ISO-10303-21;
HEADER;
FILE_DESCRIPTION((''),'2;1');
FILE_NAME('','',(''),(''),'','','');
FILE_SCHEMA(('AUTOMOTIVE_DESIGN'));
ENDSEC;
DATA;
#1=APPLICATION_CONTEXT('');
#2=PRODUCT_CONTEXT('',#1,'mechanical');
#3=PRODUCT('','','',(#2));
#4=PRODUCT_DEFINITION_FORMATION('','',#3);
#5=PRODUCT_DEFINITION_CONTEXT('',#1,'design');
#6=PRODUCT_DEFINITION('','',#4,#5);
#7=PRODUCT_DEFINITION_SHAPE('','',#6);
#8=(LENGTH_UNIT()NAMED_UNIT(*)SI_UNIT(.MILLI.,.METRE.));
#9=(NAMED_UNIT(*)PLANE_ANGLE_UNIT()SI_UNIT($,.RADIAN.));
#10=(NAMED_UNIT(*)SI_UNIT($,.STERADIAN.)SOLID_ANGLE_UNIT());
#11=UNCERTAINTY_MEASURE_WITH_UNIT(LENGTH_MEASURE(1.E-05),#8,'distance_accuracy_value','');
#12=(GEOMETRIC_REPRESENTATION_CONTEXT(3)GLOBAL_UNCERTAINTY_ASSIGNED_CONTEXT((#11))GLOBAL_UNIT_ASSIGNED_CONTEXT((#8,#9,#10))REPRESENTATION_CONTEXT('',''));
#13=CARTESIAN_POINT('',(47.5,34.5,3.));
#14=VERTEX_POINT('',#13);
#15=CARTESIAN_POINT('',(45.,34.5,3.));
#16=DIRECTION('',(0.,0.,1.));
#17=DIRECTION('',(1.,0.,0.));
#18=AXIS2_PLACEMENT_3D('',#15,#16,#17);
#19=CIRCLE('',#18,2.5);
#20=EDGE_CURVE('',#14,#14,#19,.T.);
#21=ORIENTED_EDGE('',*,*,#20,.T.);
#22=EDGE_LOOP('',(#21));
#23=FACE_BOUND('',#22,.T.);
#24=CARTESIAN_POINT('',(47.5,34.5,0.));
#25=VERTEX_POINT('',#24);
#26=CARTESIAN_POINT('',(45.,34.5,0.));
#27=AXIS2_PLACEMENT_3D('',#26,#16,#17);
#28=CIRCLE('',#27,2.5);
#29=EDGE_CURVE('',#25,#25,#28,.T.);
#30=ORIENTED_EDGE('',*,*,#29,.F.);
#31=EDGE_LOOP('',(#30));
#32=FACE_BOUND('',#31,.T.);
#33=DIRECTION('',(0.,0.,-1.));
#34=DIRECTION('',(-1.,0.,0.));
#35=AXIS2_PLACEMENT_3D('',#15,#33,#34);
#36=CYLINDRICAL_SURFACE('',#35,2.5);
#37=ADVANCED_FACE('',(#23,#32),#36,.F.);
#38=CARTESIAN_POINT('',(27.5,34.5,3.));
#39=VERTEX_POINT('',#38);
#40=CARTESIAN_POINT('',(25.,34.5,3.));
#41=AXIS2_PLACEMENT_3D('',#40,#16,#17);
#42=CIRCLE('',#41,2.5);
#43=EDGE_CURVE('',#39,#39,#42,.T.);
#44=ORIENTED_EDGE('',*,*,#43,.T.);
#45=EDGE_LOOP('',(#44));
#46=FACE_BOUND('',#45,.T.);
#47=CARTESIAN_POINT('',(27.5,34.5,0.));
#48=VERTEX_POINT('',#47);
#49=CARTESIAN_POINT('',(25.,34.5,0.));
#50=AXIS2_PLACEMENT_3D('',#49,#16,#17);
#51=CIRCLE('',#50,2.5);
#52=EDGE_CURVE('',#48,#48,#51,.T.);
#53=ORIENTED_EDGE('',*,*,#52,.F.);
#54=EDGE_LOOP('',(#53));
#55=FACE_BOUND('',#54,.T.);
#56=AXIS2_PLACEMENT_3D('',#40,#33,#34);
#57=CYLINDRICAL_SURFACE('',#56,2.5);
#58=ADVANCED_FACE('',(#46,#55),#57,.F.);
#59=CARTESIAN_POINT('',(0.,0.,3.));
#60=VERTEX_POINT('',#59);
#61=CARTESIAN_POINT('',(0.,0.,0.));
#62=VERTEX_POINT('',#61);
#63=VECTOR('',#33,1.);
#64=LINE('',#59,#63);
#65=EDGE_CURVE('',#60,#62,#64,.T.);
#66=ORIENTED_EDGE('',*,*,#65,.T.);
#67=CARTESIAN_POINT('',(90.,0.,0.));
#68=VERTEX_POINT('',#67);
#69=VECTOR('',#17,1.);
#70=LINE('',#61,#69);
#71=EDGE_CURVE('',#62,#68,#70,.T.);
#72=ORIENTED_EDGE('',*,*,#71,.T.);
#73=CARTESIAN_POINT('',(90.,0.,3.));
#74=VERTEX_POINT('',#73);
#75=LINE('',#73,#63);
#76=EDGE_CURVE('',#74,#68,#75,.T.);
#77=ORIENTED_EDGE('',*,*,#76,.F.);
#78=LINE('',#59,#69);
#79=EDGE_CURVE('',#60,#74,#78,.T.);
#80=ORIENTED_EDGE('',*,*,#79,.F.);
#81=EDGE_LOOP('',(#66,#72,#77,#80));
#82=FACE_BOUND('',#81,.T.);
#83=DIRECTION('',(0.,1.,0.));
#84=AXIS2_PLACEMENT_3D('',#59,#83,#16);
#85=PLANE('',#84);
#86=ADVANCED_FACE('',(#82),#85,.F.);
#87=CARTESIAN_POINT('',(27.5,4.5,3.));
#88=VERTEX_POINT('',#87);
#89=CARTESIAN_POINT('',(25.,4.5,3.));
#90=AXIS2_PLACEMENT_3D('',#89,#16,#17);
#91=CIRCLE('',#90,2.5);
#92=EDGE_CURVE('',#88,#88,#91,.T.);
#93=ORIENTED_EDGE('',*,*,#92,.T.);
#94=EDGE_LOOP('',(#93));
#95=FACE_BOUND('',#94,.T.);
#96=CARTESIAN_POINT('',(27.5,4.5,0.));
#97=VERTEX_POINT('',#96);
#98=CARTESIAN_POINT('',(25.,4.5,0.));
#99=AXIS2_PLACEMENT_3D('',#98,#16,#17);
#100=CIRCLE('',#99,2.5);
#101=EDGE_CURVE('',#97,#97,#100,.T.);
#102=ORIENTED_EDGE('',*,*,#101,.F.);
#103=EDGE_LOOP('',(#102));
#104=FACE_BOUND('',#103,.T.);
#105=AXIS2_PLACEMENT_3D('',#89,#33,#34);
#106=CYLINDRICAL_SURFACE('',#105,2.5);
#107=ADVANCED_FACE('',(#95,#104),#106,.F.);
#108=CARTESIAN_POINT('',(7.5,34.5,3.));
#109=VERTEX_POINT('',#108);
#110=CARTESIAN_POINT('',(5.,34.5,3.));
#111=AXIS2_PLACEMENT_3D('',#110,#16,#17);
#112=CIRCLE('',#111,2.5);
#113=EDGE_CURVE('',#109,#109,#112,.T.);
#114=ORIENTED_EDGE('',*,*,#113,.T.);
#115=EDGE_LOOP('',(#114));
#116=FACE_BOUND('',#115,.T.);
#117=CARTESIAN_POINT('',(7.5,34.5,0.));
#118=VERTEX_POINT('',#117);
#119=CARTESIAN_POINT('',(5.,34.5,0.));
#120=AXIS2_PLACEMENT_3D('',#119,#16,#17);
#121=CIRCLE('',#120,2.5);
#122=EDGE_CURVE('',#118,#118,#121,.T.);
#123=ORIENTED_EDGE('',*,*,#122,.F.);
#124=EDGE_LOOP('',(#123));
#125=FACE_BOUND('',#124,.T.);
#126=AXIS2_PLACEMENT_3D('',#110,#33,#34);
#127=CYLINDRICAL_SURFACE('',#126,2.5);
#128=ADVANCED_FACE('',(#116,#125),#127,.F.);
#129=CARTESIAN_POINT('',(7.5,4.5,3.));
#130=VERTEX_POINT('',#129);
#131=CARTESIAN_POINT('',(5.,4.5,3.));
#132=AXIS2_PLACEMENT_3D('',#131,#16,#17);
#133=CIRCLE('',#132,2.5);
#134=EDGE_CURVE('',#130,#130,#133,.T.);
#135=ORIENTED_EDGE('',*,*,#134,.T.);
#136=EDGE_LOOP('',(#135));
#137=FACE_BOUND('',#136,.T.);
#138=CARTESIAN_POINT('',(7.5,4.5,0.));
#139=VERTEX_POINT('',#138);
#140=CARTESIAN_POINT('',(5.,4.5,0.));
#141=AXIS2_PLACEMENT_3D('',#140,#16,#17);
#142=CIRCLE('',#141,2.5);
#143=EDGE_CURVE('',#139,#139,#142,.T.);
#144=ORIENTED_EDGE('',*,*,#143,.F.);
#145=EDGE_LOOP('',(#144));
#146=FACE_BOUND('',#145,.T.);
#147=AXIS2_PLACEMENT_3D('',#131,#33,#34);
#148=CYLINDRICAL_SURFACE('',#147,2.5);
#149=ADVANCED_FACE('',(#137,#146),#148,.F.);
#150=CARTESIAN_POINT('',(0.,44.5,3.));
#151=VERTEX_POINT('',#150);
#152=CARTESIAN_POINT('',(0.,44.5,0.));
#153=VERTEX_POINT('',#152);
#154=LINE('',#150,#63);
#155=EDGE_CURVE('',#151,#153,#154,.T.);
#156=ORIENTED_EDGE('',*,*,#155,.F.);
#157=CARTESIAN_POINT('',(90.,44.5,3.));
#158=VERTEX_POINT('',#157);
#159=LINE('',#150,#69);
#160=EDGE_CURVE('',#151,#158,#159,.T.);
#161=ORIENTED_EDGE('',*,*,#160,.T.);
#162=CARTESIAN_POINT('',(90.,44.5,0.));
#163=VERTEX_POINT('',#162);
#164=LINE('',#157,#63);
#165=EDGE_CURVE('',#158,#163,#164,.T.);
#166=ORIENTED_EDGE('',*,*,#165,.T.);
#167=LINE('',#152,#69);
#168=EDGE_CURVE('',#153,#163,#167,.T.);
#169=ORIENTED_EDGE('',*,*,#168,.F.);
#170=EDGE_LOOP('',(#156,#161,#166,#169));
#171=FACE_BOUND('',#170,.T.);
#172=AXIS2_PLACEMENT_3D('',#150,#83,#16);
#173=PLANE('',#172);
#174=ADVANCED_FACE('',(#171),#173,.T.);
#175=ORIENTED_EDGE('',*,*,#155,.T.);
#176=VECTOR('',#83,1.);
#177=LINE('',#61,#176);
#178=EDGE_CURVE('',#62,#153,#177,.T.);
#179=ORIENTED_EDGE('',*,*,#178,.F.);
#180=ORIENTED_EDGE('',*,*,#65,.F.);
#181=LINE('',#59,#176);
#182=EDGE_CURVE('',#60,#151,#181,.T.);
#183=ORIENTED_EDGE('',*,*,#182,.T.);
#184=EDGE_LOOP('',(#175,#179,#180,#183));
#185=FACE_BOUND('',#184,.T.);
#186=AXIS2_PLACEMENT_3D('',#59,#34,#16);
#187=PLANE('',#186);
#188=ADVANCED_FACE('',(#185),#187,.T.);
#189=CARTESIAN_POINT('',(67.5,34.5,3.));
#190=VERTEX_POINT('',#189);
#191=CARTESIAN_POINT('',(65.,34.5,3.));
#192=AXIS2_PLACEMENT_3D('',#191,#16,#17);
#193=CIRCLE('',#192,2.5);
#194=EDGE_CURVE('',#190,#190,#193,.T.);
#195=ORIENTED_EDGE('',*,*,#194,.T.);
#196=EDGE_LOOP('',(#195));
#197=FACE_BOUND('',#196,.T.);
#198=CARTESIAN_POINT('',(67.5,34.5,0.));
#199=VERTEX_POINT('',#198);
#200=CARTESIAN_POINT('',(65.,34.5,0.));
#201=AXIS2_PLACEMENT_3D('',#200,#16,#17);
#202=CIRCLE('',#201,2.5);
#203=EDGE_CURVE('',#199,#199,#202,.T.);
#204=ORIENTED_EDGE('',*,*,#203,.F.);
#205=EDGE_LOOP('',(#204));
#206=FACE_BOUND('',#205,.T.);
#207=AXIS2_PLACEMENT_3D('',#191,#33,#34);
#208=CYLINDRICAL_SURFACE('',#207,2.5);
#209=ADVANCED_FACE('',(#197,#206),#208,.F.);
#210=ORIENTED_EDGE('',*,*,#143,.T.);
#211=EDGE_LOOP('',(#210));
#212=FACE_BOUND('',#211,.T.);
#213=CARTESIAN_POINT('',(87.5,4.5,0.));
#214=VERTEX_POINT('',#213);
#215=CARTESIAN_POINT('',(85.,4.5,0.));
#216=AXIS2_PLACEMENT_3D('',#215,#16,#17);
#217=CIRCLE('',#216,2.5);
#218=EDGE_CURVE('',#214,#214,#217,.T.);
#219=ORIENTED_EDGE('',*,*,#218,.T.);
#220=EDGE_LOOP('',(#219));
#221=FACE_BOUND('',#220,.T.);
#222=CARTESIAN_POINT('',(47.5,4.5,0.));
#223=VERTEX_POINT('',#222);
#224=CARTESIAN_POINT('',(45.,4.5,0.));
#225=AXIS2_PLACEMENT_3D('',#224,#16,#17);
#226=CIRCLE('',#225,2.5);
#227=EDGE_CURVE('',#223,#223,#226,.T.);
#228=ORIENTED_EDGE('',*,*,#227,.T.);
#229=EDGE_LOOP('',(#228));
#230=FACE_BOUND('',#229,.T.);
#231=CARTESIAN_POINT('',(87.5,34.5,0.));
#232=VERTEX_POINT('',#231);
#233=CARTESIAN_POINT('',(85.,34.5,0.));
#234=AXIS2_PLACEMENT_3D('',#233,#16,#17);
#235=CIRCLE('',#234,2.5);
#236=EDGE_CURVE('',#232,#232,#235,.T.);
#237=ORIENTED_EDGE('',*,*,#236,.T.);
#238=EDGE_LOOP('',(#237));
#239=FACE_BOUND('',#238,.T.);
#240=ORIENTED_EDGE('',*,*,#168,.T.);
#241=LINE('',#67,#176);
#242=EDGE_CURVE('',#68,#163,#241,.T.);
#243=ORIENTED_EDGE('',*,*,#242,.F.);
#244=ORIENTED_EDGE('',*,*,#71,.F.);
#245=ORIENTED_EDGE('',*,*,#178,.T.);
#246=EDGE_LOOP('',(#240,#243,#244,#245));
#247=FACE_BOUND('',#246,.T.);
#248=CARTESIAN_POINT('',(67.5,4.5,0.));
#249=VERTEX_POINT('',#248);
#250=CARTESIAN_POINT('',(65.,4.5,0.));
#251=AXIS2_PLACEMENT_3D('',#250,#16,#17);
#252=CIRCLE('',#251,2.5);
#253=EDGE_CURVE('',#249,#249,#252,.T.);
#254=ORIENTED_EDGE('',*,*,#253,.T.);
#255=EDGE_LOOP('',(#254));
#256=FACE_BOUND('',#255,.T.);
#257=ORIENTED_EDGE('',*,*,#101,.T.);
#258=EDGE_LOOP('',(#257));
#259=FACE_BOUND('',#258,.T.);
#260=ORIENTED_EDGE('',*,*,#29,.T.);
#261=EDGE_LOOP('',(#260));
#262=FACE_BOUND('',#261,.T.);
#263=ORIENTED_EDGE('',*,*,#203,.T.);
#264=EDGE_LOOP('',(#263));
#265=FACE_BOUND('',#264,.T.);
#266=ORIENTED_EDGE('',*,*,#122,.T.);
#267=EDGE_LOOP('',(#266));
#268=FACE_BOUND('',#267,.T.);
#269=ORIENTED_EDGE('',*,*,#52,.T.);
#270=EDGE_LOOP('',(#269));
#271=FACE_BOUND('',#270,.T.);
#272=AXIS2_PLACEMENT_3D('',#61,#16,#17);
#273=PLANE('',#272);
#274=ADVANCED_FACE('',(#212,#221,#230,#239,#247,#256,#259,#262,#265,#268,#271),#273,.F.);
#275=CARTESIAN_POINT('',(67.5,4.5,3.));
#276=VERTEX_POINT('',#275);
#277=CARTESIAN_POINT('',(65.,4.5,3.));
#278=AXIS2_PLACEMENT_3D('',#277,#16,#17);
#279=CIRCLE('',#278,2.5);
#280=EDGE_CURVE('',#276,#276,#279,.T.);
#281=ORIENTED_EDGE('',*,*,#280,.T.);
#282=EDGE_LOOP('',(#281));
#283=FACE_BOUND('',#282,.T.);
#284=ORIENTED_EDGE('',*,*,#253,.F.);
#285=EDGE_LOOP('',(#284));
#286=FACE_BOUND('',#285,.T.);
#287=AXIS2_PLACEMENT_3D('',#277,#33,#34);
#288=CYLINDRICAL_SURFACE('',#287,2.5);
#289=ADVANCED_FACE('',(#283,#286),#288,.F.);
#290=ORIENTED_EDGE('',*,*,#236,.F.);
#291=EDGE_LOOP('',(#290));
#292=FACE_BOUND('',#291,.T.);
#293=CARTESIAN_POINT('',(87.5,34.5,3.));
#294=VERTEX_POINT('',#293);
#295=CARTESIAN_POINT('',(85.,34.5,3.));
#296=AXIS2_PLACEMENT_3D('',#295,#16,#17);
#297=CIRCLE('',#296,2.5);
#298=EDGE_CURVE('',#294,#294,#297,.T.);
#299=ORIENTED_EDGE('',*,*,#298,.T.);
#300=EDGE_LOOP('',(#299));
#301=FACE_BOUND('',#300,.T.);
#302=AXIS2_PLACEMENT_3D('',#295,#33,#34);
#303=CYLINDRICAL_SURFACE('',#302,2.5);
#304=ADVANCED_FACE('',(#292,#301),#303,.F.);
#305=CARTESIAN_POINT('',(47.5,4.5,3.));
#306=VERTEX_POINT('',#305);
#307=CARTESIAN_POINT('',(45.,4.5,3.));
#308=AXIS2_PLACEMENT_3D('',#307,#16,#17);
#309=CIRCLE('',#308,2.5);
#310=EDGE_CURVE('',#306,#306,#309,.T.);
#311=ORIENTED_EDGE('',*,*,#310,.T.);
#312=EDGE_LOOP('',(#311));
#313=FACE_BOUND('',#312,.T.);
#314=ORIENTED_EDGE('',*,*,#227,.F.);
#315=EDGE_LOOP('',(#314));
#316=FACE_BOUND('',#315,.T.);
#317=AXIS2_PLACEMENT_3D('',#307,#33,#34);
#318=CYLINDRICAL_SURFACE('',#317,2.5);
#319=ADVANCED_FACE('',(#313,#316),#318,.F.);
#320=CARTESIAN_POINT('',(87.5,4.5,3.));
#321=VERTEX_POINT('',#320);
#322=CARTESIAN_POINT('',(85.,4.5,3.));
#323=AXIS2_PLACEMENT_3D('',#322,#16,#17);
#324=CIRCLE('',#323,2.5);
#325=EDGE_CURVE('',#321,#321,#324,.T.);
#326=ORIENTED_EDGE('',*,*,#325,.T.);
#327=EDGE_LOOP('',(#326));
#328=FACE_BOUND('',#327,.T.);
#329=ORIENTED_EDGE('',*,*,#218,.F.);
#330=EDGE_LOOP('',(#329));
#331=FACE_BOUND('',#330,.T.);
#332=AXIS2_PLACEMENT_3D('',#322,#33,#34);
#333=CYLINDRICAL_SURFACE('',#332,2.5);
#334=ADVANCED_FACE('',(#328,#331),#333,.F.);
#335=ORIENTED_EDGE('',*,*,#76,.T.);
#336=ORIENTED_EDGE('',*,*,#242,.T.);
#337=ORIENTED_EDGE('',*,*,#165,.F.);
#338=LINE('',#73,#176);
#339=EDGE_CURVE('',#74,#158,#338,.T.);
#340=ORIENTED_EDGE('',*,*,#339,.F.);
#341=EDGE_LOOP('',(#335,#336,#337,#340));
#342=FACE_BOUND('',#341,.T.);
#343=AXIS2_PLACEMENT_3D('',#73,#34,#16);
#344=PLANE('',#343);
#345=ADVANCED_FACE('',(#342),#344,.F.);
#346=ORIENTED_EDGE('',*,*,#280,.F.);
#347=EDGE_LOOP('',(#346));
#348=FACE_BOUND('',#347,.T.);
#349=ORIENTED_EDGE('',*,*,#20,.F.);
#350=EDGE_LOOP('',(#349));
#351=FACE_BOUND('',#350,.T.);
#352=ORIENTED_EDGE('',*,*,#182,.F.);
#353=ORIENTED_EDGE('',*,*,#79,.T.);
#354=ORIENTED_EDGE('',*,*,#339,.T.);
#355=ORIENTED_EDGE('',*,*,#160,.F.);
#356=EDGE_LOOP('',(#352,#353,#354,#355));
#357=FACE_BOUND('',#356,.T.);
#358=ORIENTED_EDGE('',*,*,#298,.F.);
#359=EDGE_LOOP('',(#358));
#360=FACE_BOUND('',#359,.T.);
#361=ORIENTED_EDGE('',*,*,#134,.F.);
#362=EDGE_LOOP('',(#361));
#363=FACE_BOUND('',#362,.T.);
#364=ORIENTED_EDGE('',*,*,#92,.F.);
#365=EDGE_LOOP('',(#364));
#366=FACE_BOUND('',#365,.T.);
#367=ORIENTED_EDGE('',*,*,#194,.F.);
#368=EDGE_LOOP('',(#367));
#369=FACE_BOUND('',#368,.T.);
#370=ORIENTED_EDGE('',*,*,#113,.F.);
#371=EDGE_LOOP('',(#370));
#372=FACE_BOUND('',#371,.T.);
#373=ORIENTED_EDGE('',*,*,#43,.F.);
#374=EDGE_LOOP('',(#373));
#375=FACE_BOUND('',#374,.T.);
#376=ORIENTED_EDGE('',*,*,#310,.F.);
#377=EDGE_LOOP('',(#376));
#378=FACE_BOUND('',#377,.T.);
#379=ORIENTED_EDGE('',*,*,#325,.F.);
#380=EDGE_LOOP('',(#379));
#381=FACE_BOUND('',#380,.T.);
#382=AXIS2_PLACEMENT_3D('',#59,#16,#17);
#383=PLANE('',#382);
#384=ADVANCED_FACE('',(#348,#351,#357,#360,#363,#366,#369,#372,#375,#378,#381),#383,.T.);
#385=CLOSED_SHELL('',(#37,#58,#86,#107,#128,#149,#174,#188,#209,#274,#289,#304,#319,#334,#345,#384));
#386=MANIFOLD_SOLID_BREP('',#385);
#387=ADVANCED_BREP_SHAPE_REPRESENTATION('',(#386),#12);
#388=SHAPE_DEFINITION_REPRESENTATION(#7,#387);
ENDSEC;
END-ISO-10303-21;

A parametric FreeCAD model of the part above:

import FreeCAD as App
import Part
import Sketcher
from FreeCAD import Vector


def add_polygon(sketch, points):
    """Adds a closed chain of lines whose ends are joined by coincident constraints."""
    first, n = sketch.GeometryCount, len(points)
    for a, b in zip(points, points[1:] + points[:1]):
        sketch.addGeometry(Part.LineSegment(App.Vector(*a, 0), App.Vector(*b, 0)), False)
    for i in range(n):
        sketch.addConstraint(Sketcher.Constraint("Coincident", first + i, 2, first + (i + 1) % n, 1))

doc = App.newDocument("Part")
body = doc.addObject("PartDesign::Body", "Body")

sketch1 = body.newObject("Sketcher::SketchObject", "Sketch")
sketch1.AttachmentSupport = (doc.getObject("XY_Plane"), [""])
sketch1.MapMode = "FlatFace"
add_polygon(sketch1, [(0, 0), (90, 0), (90, 44.5), (0, 44.5)])
sketch1.addGeometry(Part.Circle(Vector(5, 4.5, 0), Vector(0, 0, 1), 2.5), False)
sketch1.addGeometry(Part.Circle(Vector(25, 4.5, 0), Vector(0, 0, 1), 2.5), False)
sketch1.addGeometry(Part.Circle(Vector(45, 4.5, 0), Vector(0, 0, 1), 2.5), False)
sketch1.addGeometry(Part.Circle(Vector(65, 4.5, 0), Vector(0, 0, 1), 2.5), False)
sketch1.addGeometry(Part.Circle(Vector(85, 4.5, 0), Vector(0, 0, 1), 2.5), False)
sketch1.addGeometry(Part.Circle(Vector(85, 34.5, 0), Vector(0, 0, 1), 2.5), False)
sketch1.addGeometry(Part.Circle(Vector(5, 34.5, 0), Vector(0, 0, 1), 2.5), False)
sketch1.addGeometry(Part.Circle(Vector(25, 34.5, 0), Vector(0, 0, 1), 2.5), False)
sketch1.addGeometry(Part.Circle(Vector(45, 34.5, 0), Vector(0, 0, 1), 2.5), False)
sketch1.addGeometry(Part.Circle(Vector(65, 34.5, 0), Vector(0, 0, 1), 2.5), False)
sketch1.addConstraint([
    Sketcher.Constraint("Horizontal", 0),
    Sketcher.Constraint("Vertical", 1),
    Sketcher.Constraint("Horizontal", 2),
    Sketcher.Constraint("Vertical", 3),
    Sketcher.Constraint("Coincident", 3, 2, -1, 1),
    Sketcher.Constraint("Equal", 4, 5),
    Sketcher.Constraint("Equal", 5, 6),
    Sketcher.Constraint("Equal", 6, 7),
    Sketcher.Constraint("Equal", 7, 8),
    Sketcher.Constraint("Equal", 8, 9),
    Sketcher.Constraint("Equal", 9, 10),
    Sketcher.Constraint("Equal", 10, 11),
    Sketcher.Constraint("Equal", 11, 12),
    Sketcher.Constraint("Equal", 12, 13),
    Sketcher.Constraint("Horizontal", 4, 3, 5, 3),
    Sketcher.Constraint("Horizontal", 5, 3, 6, 3),
    Sketcher.Constraint("Horizontal", 6, 3, 7, 3),
    Sketcher.Constraint("Horizontal", 7, 3, 8, 3),
    Sketcher.Constraint("Horizontal", 9, 3, 10, 3),
    Sketcher.Constraint("Horizontal", 10, 3, 11, 3),
    Sketcher.Constraint("Horizontal", 11, 3, 12, 3),
    Sketcher.Constraint("Horizontal", 12, 3, 13, 3),
    Sketcher.Constraint("Vertical", 8, 3, 9, 3),
    Sketcher.Constraint("Vertical", 4, 3, 10, 3),
    Sketcher.Constraint("Vertical", 5, 3, 11, 3),
    Sketcher.Constraint("Vertical", 6, 3, 12, 3),
    Sketcher.Constraint("Vertical", 7, 3, 13, 3),
    Sketcher.Constraint("Diameter", 4, 5.0),
    Sketcher.Constraint("DistanceX", 0, 1, 0, 2, 90.0),
    Sketcher.Constraint("DistanceY", 1, 1, 1, 2, 44.5),
    Sketcher.Constraint("DistanceX", -1, 1, 4, 3, 5.0),
    Sketcher.Constraint("DistanceX", -1, 1, 5, 3, 25.0),
    Sketcher.Constraint("DistanceX", -1, 1, 6, 3, 45.0),
    Sketcher.Constraint("DistanceX", -1, 1, 7, 3, 65.0),
    Sketcher.Constraint("DistanceX", -1, 1, 8, 3, 85.0),
    Sketcher.Constraint("DistanceY", 8, 3, 9, 3, 30.0),
    Sketcher.Constraint("DistanceY", 9, 3, 1, 2, 10.0),
])
pad1 = body.newObject("PartDesign::Pad", "Pad")
pad1.Profile = sketch1
pad1.Length = 3

doc.recompute()
